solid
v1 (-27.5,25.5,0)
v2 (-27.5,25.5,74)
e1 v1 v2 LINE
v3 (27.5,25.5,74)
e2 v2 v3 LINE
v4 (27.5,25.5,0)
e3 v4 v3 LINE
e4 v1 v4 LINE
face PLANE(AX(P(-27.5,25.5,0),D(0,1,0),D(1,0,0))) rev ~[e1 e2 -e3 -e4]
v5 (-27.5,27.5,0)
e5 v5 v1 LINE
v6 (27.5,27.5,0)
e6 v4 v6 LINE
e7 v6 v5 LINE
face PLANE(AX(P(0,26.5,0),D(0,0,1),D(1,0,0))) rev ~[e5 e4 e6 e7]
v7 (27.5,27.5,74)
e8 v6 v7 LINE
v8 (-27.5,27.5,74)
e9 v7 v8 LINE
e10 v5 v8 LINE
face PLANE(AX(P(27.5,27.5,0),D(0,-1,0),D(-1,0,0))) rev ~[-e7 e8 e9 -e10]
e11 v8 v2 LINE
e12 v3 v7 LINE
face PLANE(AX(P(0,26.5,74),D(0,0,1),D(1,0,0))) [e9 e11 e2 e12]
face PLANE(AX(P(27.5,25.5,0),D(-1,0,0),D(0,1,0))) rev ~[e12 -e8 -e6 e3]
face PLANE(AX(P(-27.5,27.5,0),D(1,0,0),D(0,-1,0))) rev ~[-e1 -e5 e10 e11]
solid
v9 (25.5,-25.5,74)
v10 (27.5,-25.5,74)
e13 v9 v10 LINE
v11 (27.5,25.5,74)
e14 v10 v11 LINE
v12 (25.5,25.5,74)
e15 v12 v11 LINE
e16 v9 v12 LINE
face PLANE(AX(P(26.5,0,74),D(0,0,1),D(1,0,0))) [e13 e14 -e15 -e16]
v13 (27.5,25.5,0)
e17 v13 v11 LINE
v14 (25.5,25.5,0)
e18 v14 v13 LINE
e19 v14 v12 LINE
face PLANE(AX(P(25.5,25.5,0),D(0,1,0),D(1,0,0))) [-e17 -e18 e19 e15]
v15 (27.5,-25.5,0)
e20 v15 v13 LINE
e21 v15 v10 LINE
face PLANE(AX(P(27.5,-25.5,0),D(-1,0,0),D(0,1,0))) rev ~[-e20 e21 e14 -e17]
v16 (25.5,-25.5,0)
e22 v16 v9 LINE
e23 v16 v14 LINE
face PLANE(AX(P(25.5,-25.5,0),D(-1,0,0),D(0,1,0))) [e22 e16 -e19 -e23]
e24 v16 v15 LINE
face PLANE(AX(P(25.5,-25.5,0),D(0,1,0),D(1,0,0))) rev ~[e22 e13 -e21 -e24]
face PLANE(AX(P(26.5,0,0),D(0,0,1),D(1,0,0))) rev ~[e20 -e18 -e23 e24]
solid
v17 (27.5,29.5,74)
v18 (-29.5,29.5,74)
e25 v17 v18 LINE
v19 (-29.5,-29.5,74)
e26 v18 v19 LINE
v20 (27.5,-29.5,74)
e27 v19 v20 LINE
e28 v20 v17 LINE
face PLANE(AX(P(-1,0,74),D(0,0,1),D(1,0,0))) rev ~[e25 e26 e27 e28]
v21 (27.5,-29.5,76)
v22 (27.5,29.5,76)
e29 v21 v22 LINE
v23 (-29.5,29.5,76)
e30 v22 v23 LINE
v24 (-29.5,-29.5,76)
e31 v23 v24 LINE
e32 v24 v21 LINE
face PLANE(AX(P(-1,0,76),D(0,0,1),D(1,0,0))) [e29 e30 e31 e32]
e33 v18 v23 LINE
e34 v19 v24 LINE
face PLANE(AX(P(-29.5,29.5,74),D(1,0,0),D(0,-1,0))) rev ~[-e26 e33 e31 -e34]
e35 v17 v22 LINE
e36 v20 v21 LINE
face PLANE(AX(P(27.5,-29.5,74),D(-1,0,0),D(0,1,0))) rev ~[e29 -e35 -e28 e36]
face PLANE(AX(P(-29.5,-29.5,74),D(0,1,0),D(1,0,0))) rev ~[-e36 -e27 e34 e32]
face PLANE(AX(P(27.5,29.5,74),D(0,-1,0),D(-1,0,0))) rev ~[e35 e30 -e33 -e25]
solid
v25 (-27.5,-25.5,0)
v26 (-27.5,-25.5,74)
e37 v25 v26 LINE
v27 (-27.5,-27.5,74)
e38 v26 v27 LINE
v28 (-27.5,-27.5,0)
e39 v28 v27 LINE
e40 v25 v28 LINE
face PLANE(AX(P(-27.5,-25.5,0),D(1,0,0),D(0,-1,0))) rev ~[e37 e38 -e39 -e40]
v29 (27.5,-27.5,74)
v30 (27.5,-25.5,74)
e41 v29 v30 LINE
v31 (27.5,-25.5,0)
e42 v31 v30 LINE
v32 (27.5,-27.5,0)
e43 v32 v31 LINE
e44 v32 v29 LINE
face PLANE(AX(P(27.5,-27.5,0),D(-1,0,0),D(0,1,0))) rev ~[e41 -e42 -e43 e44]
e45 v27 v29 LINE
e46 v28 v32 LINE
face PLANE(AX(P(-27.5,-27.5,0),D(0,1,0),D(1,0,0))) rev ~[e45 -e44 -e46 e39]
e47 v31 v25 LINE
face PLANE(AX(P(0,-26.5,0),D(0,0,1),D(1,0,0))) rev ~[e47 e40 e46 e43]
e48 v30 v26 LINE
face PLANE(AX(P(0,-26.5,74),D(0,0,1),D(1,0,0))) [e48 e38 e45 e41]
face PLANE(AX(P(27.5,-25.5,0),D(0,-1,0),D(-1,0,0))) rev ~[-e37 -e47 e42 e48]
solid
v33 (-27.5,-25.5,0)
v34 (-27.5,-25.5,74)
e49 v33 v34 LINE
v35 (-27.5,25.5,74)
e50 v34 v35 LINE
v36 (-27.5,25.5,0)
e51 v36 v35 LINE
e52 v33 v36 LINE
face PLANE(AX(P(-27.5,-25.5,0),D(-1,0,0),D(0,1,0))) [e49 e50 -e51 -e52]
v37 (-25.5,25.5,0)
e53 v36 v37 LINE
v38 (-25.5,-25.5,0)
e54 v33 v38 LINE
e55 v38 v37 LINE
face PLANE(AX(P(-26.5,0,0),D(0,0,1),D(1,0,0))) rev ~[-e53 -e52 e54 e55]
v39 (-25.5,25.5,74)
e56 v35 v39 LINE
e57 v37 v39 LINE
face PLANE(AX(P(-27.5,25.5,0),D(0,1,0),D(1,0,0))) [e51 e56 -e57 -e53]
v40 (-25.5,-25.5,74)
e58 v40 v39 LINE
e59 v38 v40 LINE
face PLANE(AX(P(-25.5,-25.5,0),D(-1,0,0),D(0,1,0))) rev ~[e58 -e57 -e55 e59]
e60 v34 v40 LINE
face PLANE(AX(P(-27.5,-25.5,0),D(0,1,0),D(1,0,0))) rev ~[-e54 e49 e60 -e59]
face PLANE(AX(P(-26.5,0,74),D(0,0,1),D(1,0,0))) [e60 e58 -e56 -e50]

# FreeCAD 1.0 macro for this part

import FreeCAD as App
import Part
import Sketcher

doc = App.newDocument("Part")
body = doc.addObject("PartDesign::Body", "Body")

# Sketch on XY plane
sketch1 = body.newObject("Sketcher::SketchObject", "Sketch")
sketch1.AttachmentSupport = (doc.getObject("XY_Plane"), [""])
sketch1.MapMode = "FlatFace"
sketch1.addGeometry([
    Part.LineSegment(App.Vector(27.5, 27.5, 0), App.Vector(-27.5, 27.5, 0)),
    Part.LineSegment(App.Vector(-27.5, 27.5, 0), App.Vector(-27.5, 25.5, 0)),
    Part.LineSegment(App.Vector(-27.5, 25.5, 0), App.Vector(27.5, 25.5, 0)),
    Part.LineSegment(App.Vector(27.5, 25.5, 0), App.Vector(27.5, 27.5, 0)),
], False)
sketch1.addConstraint([
    Sketcher.Constraint("Coincident", 0, 2, 1, 1),
    Sketcher.Constraint("Coincident", 1, 2, 2, 1),
    Sketcher.Constraint("Coincident", 2, 2, 3, 1),
    Sketcher.Constraint("Coincident", 3, 2, 0, 1),
    Sketcher.Constraint("Horizontal", 0),
    Sketcher.Constraint("Vertical", 1),
    Sketcher.Constraint("Horizontal", 2),
    Sketcher.Constraint("Vertical", 3),
    Sketcher.Constraint("DistanceX", 0, 2, 0, 1, 55.0),
    Sketcher.Constraint("DistanceY", 1, 2, 1, 1, 2.0),
    Sketcher.Constraint("DistanceX", 0, 2, -1, 1, 27.5),
    Sketcher.Constraint("DistanceY", -1, 1, 0, 2, 27.5),
])
pad1 = body.newObject("PartDesign::Pad", "Pad")
pad1.Profile = sketch1
pad1.Length = 74
body2 = doc.addObject("PartDesign::Body", "Body001")

# Sketch on XY plane
sketch2 = body2.newObject("Sketcher::SketchObject", "Sketch001")
sketch2.AttachmentSupport = (doc.getObject("XY_Plane001"), [""])
sketch2.MapMode = "FlatFace"
sketch2.addGeometry([
    Part.LineSegment(App.Vector(-27.5, 25.5, 0), App.Vector(-27.5, -25.5, 0)),
    Part.LineSegment(App.Vector(-27.5, -25.5, 0), App.Vector(-25.5, -25.5, 0)),
    Part.LineSegment(App.Vector(-25.5, -25.5, 0), App.Vector(-25.5, 25.5, 0)),
    Part.LineSegment(App.Vector(-25.5, 25.5, 0), App.Vector(-27.5, 25.5, 0)),
], False)
sketch2.addConstraint([
    Sketcher.Constraint("Coincident", 0, 2, 1, 1),
    Sketcher.Constraint("Coincident", 1, 2, 2, 1),
    Sketcher.Constraint("Coincident", 2, 2, 3, 1),
    Sketcher.Constraint("Coincident", 3, 2, 0, 1),
    Sketcher.Constraint("Vertical", 0),
    Sketcher.Constraint("Horizontal", 1),
    Sketcher.Constraint("Vertical", 2),
    Sketcher.Constraint("Horizontal", 3),
    Sketcher.Constraint("DistanceX", 1, 1, 1, 2, 2.0),
    Sketcher.Constraint("DistanceY", 0, 2, 0, 1, 51.0),
    Sketcher.Constraint("DistanceX", 0, 2, -1, 1, 27.5),
    Sketcher.Constraint("DistanceY", 0, 2, -1, 1, 25.5),
])
pad2 = body2.newObject("PartDesign::Pad", "Pad001")
pad2.Profile = sketch2
pad2.Length = 74
body3 = doc.addObject("PartDesign::Body", "Body002")

# Sketch on XY plane
sketch3 = body3.newObject("Sketcher::SketchObject", "Sketch002")
sketch3.AttachmentSupport = (doc.getObject("XY_Plane002"), [""])
sketch3.MapMode = "FlatFace"
sketch3.addGeometry([
    Part.LineSegment(App.Vector(-27.5, -25.5, 0), App.Vector(-27.5, -27.5, 0)),
    Part.LineSegment(App.Vector(-27.5, -27.5, 0), App.Vector(27.5, -27.5, 0)),
    Part.LineSegment(App.Vector(27.5, -27.5, 0), App.Vector(27.5, -25.5, 0)),
    Part.LineSegment(App.Vector(27.5, -25.5, 0), App.Vector(-27.5, -25.5, 0)),
], False)
sketch3.addConstraint([
    Sketcher.Constraint("Coincident", 0, 2, 1, 1),
    Sketcher.Constraint("Coincident", 1, 2, 2, 1),
    Sketcher.Constraint("Coincident", 2, 2, 3, 1),
    Sketcher.Constraint("Coincident", 3, 2, 0, 1),
    Sketcher.Constraint("Vertical", 0),
    Sketcher.Constraint("Horizontal", 1),
    Sketcher.Constraint("Vertical", 2),
    Sketcher.Constraint("Horizontal", 3),
    Sketcher.Constraint("DistanceX", 1, 1, 1, 2, 55.0),
    Sketcher.Constraint("DistanceY", 0, 2, 0, 1, 2.0),
    Sketcher.Constraint("DistanceX", 0, 2, -1, 1, 27.5),
    Sketcher.Constraint("DistanceY", 0, 2, -1, 1, 27.5),
])
pad3 = body3.newObject("PartDesign::Pad", "Pad002")
pad3.Profile = sketch3
pad3.Length = 74
body4 = doc.addObject("PartDesign::Body", "Body003")

# Sketch on XY plane
sketch4 = body4.newObject("Sketcher::SketchObject", "Sketch003")
sketch4.AttachmentSupport = (doc.getObject("XY_Plane003"), [""])
sketch4.MapMode = "FlatFace"
sketch4.addGeometry([
    Part.LineSegment(App.Vector(25.5, 25.5, 0), App.Vector(25.5, -25.5, 0)),
    Part.LineSegment(App.Vector(25.5, -25.5, 0), App.Vector(27.5, -25.5, 0)),
    Part.LineSegment(App.Vector(27.5, -25.5, 0), App.Vector(27.5, 25.5, 0)),
    Part.LineSegment(App.Vector(27.5, 25.5, 0), App.Vector(25.5, 25.5, 0)),
], False)
sketch4.addConstraint([
    Sketcher.Constraint("Coincident", 0, 2, 1, 1),
    Sketcher.Constraint("Coincident", 1, 2, 2, 1),
    Sketcher.Constraint("Coincident", 2, 2, 3, 1),
    Sketcher.Constraint("Coincident", 3, 2, 0, 1),
    Sketcher.Constraint("Vertical", 0),
    Sketcher.Constraint("Horizontal", 1),
    Sketcher.Constraint("Vertical", 2),
    Sketcher.Constraint("Horizontal", 3),
    Sketcher.Constraint("DistanceX", 1, 1, 1, 2, 2.0),
    Sketcher.Constraint("DistanceY", 0, 2, 0, 1, 51.0),
    Sketcher.Constraint("DistanceX", -1, 1, 0, 2, 25.5),
    Sketcher.Constraint("DistanceY", 0, 2, -1, 1, 25.5),
])
pad4 = body4.newObject("PartDesign::Pad", "Pad003")
pad4.Profile = sketch4
pad4.Length = 74
body5 = doc.addObject("PartDesign::Body", "Body004")

# Sketch on XY plane
sketch5 = body5.newObject("Sketcher::SketchObject", "Sketch004")
sketch5.AttachmentSupport = (doc.getObject("XY_Plane004"), [""])
sketch5.MapMode = "FlatFace"
sketch5.AttachmentOffset = App.Placement(App.Vector(0, 0, 74), App.Rotation())
sketch5.addGeometry([
    Part.LineSegment(App.Vector(28, 30, 0), App.Vector(-30, 30, 0)),
    Part.LineSegment(App.Vector(-30, 30, 0), App.Vector(-30, -30, 0)),
    Part.LineSegment(App.Vector(-30, -30, 0), App.Vector(28, -30, 0)),
    Part.LineSegment(App.Vector(28, -30, 0), App.Vector(28, 30, 0)),
], False)
sketch5.addConstraint([
    Sketcher.Constraint("Coincident", 0, 2, 1, 1),
    Sketcher.Constraint("Coincident", 1, 2, 2, 1),
    Sketcher.Constraint("Coincident", 2, 2, 3, 1),
    Sketcher.Constraint("Coincident", 3, 2, 0, 1),
    Sketcher.Constraint("Horizontal", 0),
    Sketcher.Constraint("Vertical", 1),
    Sketcher.Constraint("Horizontal", 2),
    Sketcher.Constraint("Vertical", 3),
    Sketcher.Constraint("DistanceX", 0, 2, 0, 1, 57.0),
    Sketcher.Constraint("DistanceY", 1, 2, 1, 1, 59.0),
    Sketcher.Constraint("DistanceX", 0, 2, -1, 1, 29.5),
    Sketcher.Constraint("DistanceY", -1, 1, 0, 2, 29.5),
])
pad5 = body5.newObject("PartDesign::Pad", "Pad004")
pad5.Profile = sketch5
pad5.Length = 2

doc.recompute()
